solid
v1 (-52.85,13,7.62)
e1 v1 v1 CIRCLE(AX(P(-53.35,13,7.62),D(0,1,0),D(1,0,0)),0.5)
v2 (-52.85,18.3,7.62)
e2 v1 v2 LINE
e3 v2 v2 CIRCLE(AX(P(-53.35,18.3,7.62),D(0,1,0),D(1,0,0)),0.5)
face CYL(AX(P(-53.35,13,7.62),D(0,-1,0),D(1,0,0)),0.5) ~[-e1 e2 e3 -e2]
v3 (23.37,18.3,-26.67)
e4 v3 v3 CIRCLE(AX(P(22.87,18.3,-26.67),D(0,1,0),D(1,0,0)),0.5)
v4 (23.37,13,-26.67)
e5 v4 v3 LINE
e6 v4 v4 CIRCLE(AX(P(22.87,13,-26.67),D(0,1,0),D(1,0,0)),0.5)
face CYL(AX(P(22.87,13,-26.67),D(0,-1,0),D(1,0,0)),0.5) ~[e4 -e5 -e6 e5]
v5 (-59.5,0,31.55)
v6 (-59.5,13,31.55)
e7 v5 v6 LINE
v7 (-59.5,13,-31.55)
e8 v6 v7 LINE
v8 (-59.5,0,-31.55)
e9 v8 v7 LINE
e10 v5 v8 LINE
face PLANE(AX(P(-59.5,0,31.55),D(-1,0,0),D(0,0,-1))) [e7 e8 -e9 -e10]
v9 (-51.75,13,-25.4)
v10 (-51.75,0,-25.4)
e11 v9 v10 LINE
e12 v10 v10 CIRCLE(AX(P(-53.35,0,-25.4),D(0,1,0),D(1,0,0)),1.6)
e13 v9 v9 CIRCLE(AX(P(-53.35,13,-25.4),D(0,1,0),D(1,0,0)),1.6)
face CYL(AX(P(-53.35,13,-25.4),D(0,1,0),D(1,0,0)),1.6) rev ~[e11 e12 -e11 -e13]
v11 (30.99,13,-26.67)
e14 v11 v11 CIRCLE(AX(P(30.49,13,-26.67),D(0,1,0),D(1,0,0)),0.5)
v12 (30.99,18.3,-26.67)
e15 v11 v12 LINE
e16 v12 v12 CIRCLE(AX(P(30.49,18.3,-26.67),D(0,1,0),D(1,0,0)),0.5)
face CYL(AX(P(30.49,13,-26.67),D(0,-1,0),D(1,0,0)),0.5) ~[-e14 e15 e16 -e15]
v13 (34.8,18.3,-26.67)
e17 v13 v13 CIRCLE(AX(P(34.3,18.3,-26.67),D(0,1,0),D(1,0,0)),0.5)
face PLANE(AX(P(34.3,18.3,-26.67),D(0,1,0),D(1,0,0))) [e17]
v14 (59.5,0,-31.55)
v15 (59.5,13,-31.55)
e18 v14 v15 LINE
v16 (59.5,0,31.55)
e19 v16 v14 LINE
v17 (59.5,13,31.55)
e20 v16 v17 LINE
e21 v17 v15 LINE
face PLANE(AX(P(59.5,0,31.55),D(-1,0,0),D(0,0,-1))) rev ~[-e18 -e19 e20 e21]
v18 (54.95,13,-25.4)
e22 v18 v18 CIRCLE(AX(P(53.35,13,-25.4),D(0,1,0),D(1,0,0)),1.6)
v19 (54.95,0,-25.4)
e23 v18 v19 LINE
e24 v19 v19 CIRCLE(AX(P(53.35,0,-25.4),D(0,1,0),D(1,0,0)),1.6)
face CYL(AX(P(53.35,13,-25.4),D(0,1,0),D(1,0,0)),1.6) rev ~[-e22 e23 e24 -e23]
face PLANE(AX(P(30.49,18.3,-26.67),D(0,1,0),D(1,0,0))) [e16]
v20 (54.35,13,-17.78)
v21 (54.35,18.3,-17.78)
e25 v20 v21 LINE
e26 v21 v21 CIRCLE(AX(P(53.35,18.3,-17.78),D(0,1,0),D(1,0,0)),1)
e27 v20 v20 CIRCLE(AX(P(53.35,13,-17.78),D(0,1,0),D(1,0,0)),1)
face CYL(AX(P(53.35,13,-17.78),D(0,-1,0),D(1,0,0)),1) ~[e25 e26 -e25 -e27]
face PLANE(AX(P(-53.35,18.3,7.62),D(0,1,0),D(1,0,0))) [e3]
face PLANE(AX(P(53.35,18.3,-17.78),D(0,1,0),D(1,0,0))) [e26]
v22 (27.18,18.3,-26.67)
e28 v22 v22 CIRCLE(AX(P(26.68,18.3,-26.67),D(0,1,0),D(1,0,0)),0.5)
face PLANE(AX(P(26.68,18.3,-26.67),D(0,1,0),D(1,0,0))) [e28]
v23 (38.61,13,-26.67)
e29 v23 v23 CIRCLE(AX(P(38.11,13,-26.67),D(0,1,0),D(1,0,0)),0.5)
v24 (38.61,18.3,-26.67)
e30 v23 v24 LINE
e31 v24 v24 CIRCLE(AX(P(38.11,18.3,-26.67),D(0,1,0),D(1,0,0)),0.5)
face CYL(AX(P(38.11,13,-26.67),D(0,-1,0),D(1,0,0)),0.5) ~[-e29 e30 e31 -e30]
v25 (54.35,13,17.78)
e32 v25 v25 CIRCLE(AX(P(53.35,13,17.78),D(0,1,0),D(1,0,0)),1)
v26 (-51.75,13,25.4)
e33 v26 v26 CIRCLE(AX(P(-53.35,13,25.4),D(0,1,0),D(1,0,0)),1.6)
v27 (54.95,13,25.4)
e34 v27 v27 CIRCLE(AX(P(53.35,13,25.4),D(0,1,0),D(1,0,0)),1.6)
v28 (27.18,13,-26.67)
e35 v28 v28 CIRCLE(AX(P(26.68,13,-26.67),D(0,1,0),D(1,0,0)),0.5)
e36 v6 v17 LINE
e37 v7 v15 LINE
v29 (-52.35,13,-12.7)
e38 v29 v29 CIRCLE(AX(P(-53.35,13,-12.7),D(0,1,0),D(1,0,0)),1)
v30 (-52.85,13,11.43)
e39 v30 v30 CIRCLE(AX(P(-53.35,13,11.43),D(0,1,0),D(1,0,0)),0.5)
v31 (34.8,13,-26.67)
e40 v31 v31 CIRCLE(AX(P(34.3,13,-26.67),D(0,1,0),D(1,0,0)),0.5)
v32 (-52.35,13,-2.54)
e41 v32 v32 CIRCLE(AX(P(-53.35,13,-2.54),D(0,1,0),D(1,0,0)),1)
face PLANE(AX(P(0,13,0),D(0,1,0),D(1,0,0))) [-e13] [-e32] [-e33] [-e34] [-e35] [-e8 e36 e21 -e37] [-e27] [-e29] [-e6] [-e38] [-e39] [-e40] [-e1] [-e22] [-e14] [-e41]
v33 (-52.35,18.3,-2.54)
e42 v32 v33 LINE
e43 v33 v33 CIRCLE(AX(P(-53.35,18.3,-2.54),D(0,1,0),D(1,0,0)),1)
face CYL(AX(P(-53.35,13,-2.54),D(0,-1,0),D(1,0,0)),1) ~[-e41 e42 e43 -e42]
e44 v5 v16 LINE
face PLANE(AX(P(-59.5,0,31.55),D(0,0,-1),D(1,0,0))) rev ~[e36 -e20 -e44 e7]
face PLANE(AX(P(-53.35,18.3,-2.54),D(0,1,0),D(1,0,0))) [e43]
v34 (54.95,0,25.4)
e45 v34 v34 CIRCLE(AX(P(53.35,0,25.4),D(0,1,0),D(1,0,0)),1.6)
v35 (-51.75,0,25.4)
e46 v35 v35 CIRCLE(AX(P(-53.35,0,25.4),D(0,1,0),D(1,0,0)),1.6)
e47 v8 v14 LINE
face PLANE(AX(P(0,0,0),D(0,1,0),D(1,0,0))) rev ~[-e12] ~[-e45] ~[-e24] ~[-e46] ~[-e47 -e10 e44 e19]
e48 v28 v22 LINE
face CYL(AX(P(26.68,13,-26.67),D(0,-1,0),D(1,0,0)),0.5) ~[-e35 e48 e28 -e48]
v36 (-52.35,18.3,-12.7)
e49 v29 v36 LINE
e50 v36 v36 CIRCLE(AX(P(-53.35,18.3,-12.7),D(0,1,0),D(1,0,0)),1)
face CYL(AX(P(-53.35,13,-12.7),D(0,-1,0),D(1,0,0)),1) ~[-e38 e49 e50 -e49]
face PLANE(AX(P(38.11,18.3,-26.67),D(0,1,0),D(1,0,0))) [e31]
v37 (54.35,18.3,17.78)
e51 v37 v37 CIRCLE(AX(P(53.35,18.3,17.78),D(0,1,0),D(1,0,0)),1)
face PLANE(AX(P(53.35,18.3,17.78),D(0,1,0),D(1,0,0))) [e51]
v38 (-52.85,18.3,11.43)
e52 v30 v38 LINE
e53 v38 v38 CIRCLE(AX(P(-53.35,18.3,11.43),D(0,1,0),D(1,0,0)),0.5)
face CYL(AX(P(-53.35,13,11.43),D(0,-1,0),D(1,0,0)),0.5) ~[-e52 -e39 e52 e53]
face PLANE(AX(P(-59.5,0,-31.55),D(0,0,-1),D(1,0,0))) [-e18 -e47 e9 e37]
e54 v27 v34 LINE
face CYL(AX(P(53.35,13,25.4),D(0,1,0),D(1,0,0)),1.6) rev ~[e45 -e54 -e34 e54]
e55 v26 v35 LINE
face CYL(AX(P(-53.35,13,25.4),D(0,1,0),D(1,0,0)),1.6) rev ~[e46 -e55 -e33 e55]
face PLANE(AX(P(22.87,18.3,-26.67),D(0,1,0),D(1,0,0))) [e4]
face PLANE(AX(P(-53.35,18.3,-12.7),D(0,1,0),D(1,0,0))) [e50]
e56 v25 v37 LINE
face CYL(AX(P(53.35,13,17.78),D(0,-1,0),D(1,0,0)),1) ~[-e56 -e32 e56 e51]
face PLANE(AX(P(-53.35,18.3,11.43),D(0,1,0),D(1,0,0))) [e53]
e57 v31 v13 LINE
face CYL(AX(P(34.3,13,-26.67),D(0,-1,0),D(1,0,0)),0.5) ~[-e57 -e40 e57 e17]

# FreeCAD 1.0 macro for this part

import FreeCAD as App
import Part
import Sketcher
from FreeCAD import Vector
Q = App.Units.Quantity

doc = App.newDocument("Part")
body = doc.addObject("PartDesign::Body", "Body")

sketch1 = doc.addObject("Sketcher::SketchObject", "Sketch")
body.addObject(sketch1)
sketch1.AttachmentSupport = (doc.XZ_Plane, [""])
sketch1.MapMode = "FlatFace"
sketch1.addGeometry([
    Part.LineSegment(Vector(-60, -32, 0), Vector(-60, 32, 0)),
    Part.LineSegment(Vector(-60, 32, 0), Vector(60, 32, 0)),
    Part.LineSegment(Vector(60, 32, 0), Vector(60, -32, 0)),
    Part.LineSegment(Vector(60, -32, 0), Vector(-60, -32, 0)),
], False)
sketch1.addConstraint([
    Sketcher.Constraint("Coincident", 0, 2, 1, 1),
    Sketcher.Constraint("Coincident", 1, 2, 2, 1),
    Sketcher.Constraint("Coincident", 2, 2, 3, 1),
    Sketcher.Constraint("Coincident", 3, 2, 0, 1),
    Sketcher.Constraint("Vertical", 0),
    Sketcher.Constraint("Horizontal", 1),
    Sketcher.Constraint("Vertical", 2),
    Sketcher.Constraint("Horizontal", 3),
    Sketcher.Constraint("Symmetric", 0, 2, 2, 2, -1, 1),
    Sketcher.Constraint("DistanceX", 1, 1, 1, 2, Q("119 mm")),
    Sketcher.Constraint("DistanceY", 0, 1, 0, 2, Q("63.1 mm")),
])
pad1 = doc.addObject("PartDesign::Pad", "Pad")
body.addObject(pad1)
pad1.Profile = sketch1
pad1.Length = 13
pad1.Reversed = True

sketch2 = doc.addObject("Sketcher::SketchObject", "Sketch001")
body.addObject(sketch2)
sketch2.AttachmentSupport = (doc.XZ_Plane, [""])
sketch2.MapMode = "FlatFace"
sketch2.AttachmentOffset = App.Placement(Vector(0, 0, -13), App.Rotation())
sketch2.addGeometry([
    Part.Circle(Vector(53.4, -25.4, 0), Vector(0, 0, 1), 1.6),
    Part.Circle(Vector(53.4, 25.4, 0), Vector(0, 0, 1), 1.6),
    Part.Circle(Vector(-53.4, -25.4, 0), Vector(0, 0, 1), 1.6),
    Part.Circle(Vector(-53.4, 25.4, 0), Vector(0, 0, 1), 1.6),
], False)
sketch2.addConstraint([
    Sketcher.Constraint("Equal", 0, 1),
    Sketcher.Constraint("Equal", 1, 2),
    Sketcher.Constraint("Equal", 2, 3),
    Sketcher.Constraint("Symmetric", 1, 3, 2, 3, -1, 1),
    Sketcher.Constraint("Symmetric", 0, 3, 3, 3, -1, 1),
    Sketcher.Constraint("Symmetric", 0, 3, 2, 3, -2),
    Sketcher.Constraint("Diameter", 0, Q("3.2 mm")),
    Sketcher.Constraint("DistanceY", 0, 3, -1, 1, Q("25.4 mm")),
    Sketcher.Constraint("DistanceX", 2, 3, 0, 3, Q("106.7 mm")),
])
pocket1 = doc.addObject("PartDesign::Pocket", "Pocket")
body.addObject(pocket1)
pocket1.Profile = sketch2
pocket1.Length = 13
pocket1.Reversed = True

sketch3 = doc.addObject("Sketcher::SketchObject", "Sketch002")
body.addObject(sketch3)
sketch3.AttachmentSupport = (doc.XZ_Plane, [""])
sketch3.MapMode = "FlatFace"
sketch3.AttachmentOffset = App.Placement(Vector(0, 0, -13), App.Rotation())
sketch3.addGeometry([
    Part.Circle(Vector(53.4, -17.8, 0), Vector(0, 0, 1), 1),
    Part.Circle(Vector(53.4, 17.8, 0), Vector(0, 0, 1), 1),
    Part.Circle(Vector(-53.4, -12.7, 0), Vector(0, 0, 1), 1),
    Part.Circle(Vector(-53.4, -2.5, 0), Vector(0, 0, 1), 1),
], False)
sketch3.addConstraint([
    Sketcher.Constraint("Equal", 0, 1),
    Sketcher.Constraint("Equal", 1, 2),
    Sketcher.Constraint("Equal", 2, 3),
    Sketcher.Constraint("Symmetric", 0, 3, 1, 3, -1),
    Sketcher.Constraint("Vertical", 2, 3, 3, 3),
    Sketcher.Constraint("Diameter", 0, Q("2 mm")),
    Sketcher.Constraint("DistanceY", 2, 3, -1, 1, Q("12.7 mm")),
    Sketcher.Constraint("DistanceX", 2, 3, 0, 3, Q("106.7 mm")),
    Sketcher.Constraint("DistanceX", -1, 1, 0, 3, Q("53.35 mm")),
    Sketcher.Constraint("DistanceY", 0, 3, -1, 1, Q("17.78 mm")),
    Sketcher.Constraint("DistanceY", 3, 3, -1, 1, Q("2.54 mm")),
])
pad2 = doc.addObject("PartDesign::Pad", "Pad001")
body.addObject(pad2)
pad2.Profile = sketch3
pad2.Length = 5.3
pad2.Reversed = True

sketch4 = doc.addObject("Sketcher::SketchObject", "Sketch003")
body.addObject(sketch4)
sketch4.AttachmentSupport = (doc.XZ_Plane, [""])
sketch4.MapMode = "FlatFace"
sketch4.AttachmentOffset = App.Placement(Vector(0, 0, -13), App.Rotation())
sketch4.addGeometry([
    Part.Circle(Vector(-53.4, 7.6, 0), Vector(0, 0, 1), 0.5),
    Part.Circle(Vector(-53.4, 11.4, 0), Vector(0, 0, 1), 0.5),
    Part.Circle(Vector(34.3, -26.7, 0), Vector(0, 0, 1), 0.5),
    Part.Circle(Vector(38.1, -26.7, 0), Vector(0, 0, 1), 0.5),
    Part.Circle(Vector(30.5, -26.7, 0), Vector(0, 0, 1), 0.5),
    Part.Circle(Vector(26.7, -26.7, 0), Vector(0, 0, 1), 0.5),
    Part.Circle(Vector(22.9, -26.7, 0), Vector(0, 0, 1), 0.5),
], False)
sketch4.addConstraint([
    Sketcher.Constraint("Equal", 0, 1),
    Sketcher.Constraint("Equal", 1, 2),
    Sketcher.Constraint("Equal", 2, 3),
    Sketcher.Constraint("Equal", 3, 4),
    Sketcher.Constraint("Equal", 4, 5),
    Sketcher.Constraint("Equal", 5, 6),
    Sketcher.Constraint("Horizontal", 2, 3, 3, 3),
    Sketcher.Constraint("Horizontal", 3, 3, 4, 3),
    Sketcher.Constraint("Horizontal", 4, 3, 5, 3),
    Sketcher.Constraint("Horizontal", 5, 3, 6, 3),
    Sketcher.Constraint("Vertical", 0, 3, 1, 3),
    Sketcher.Constraint("Diameter", 0, Q("1 mm")),
    Sketcher.Constraint("DistanceX", -1, 1, 2, 3, Q("34.3 mm")),
    Sketcher.Constraint("DistanceY", 2, 3, 1, 3, Q("38.1 mm")),
    Sketcher.Constraint("DistanceX", 0, 3, -1, 1, Q("53.35 mm")),
    Sketcher.Constraint("DistanceY", -1, 1, 0, 3, Q("7.62 mm")),
    Sketcher.Constraint("DistanceY", -1, 1, 1, 3, Q("11.43 mm")),
    Sketcher.Constraint("DistanceX", -1, 1, 3, 3, Q("38.11 mm")),
    Sketcher.Constraint("DistanceX", -1, 1, 4, 3, Q("30.49 mm")),
    Sketcher.Constraint("DistanceX", -1, 1, 5, 3, Q("26.68 mm")),
    Sketcher.Constraint("DistanceX", -1, 1, 6, 3, Q("22.87 mm")),
])
pad3 = doc.addObject("PartDesign::Pad", "Pad002")
body.addObject(pad3)
pad3.Profile = sketch4
pad3.Length = 5.3
pad3.Reversed = True

doc.recompute()
